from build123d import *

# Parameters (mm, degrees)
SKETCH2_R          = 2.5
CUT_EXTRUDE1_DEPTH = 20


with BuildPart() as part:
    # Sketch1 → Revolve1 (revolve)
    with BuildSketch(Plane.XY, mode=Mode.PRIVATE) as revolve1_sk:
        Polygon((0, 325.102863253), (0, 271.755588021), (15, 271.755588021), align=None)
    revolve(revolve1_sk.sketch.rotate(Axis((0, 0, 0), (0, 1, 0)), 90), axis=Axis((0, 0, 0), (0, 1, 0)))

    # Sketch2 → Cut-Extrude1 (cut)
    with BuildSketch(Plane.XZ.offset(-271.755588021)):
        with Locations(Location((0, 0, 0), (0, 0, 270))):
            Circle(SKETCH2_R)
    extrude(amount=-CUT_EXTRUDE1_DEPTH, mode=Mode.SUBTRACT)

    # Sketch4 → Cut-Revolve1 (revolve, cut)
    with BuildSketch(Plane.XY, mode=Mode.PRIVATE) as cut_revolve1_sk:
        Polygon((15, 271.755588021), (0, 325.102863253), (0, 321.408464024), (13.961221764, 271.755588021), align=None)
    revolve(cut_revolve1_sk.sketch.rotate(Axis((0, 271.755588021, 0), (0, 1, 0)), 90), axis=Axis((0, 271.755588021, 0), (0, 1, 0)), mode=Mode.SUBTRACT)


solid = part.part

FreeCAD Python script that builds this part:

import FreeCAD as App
import Part
import Sketcher

V = App.Vector
Q = App.Units.Quantity

doc = App.newDocument("Part")
body = doc.addObject("PartDesign::Body", "Body")

# Sketch on XY plane
sketch1 = doc.addObject("Sketcher::SketchObject", "Sketch")
body.addObject(sketch1)
sketch1.AttachmentSupport = (doc.XY_Plane, [""])
sketch1.MapMode = "FlatFace"
sketch1.addGeometry([
    Part.LineSegment(V(0, 325, 0), V(0, 272, 0)),
    Part.LineSegment(V(0, 272, 0), V(15, 272, 0)),
    Part.LineSegment(V(15, 272, 0), V(0, 325, 0)),
], False)
sketch1.addConstraint([
    Sketcher.Constraint("Coincident", 0, 2, 1, 1),
    Sketcher.Constraint("Coincident", 1, 2, 2, 1),
    Sketcher.Constraint("Coincident", 2, 2, 0, 1),
    Sketcher.Constraint("Vertical", 0),
    Sketcher.Constraint("Horizontal", 1),
    Sketcher.Constraint("PointOnObject", 0, 2, -2),
    Sketcher.Constraint("DistanceX", 1, 1, 1, 2, Q("15 mm")),
    Sketcher.Constraint("Distance", 2, Q("55.415988 mm")),
    Sketcher.Constraint("DistanceY", -1, 1, 0, 2, Q("271.755588 mm")),
])
revolution = doc.addObject("PartDesign::Revolution", "Revolution")
body.addObject(revolution)
revolution.Profile = sketch1
revolution.ReferenceAxis = (sketch1, ["V_Axis"])
revolution.Angle = 360

# Sketch on XZ plane
sketch2 = doc.addObject("Sketcher::SketchObject", "Sketch001")
body.addObject(sketch2)
sketch2.AttachmentSupport = (doc.XZ_Plane, [""])
sketch2.MapMode = "FlatFace"
sketch2.AttachmentOffset = App.Placement(V(0, 0, -271.755588), App.Rotation())
sketch2.addGeometry(Part.Circle(V(0, 0, 0), V(0, 0, 1), 2.5), False)
sketch2.addConstraint([
    Sketcher.Constraint("Coincident", 0, 3, -1, 1),
    Sketcher.Constraint("Diameter", 0, Q("5 mm")),
])
pocket1 = doc.addObject("PartDesign::Pocket", "Pocket")
body.addObject(pocket1)
pocket1.Profile = sketch2
pocket1.Length = 20

# Sketch on XY plane
sketch3 = doc.addObject("Sketcher::SketchObject", "Sketch002")
body.addObject(sketch3)
sketch3.AttachmentSupport = (doc.XY_Plane, [""])
sketch3.MapMode = "FlatFace"
sketch3.addGeometry([
    Part.LineSegment(V(15, 271.8, 0), V(0, 325.1, 0)),
    Part.LineSegment(V(0, 325.1, 0), V(0, 321.4, 0)),
    Part.LineSegment(V(0, 321.4, 0), V(14, 271.8, 0)),
    Part.LineSegment(V(14, 271.8, 0), V(15, 271.8, 0)),
], False)
sketch3.addConstraint([
    Sketcher.Constraint("Coincident", 0, 2, 1, 1),
    Sketcher.Constraint("Coincident", 1, 2, 2, 1),
    Sketcher.Constraint("Coincident", 2, 2, 3, 1),
    Sketcher.Constraint("Coincident", 3, 2, 0, 1),
    Sketcher.Constraint("Vertical", 1),
    Sketcher.Constraint("Horizontal", 3),
    Sketcher.Constraint("PointOnObject", 0, 2, -2),
    Sketcher.Constraint("Parallel", 0, 2),
    Sketcher.Constraint("DistanceX", -1, 1, 3, 2, Q("15 mm")),
    Sketcher.Constraint("DistanceY", 1, 2, 1, 1, Q("3.694399 mm")),
    Sketcher.Constraint("DistanceX", 3, 1, 3, 2, Q("1.038778 mm")),
    Sketcher.Constraint("DistanceY", -1, 1, 2, 2, Q("271.755588 mm")),
])
groove = doc.addObject("PartDesign::Groove", "Groove")
body.addObject(groove)
groove.Profile = sketch3
groove.ReferenceAxis = (sketch3, ["V_Axis"])
groove.Angle = 360

doc.recompute()
